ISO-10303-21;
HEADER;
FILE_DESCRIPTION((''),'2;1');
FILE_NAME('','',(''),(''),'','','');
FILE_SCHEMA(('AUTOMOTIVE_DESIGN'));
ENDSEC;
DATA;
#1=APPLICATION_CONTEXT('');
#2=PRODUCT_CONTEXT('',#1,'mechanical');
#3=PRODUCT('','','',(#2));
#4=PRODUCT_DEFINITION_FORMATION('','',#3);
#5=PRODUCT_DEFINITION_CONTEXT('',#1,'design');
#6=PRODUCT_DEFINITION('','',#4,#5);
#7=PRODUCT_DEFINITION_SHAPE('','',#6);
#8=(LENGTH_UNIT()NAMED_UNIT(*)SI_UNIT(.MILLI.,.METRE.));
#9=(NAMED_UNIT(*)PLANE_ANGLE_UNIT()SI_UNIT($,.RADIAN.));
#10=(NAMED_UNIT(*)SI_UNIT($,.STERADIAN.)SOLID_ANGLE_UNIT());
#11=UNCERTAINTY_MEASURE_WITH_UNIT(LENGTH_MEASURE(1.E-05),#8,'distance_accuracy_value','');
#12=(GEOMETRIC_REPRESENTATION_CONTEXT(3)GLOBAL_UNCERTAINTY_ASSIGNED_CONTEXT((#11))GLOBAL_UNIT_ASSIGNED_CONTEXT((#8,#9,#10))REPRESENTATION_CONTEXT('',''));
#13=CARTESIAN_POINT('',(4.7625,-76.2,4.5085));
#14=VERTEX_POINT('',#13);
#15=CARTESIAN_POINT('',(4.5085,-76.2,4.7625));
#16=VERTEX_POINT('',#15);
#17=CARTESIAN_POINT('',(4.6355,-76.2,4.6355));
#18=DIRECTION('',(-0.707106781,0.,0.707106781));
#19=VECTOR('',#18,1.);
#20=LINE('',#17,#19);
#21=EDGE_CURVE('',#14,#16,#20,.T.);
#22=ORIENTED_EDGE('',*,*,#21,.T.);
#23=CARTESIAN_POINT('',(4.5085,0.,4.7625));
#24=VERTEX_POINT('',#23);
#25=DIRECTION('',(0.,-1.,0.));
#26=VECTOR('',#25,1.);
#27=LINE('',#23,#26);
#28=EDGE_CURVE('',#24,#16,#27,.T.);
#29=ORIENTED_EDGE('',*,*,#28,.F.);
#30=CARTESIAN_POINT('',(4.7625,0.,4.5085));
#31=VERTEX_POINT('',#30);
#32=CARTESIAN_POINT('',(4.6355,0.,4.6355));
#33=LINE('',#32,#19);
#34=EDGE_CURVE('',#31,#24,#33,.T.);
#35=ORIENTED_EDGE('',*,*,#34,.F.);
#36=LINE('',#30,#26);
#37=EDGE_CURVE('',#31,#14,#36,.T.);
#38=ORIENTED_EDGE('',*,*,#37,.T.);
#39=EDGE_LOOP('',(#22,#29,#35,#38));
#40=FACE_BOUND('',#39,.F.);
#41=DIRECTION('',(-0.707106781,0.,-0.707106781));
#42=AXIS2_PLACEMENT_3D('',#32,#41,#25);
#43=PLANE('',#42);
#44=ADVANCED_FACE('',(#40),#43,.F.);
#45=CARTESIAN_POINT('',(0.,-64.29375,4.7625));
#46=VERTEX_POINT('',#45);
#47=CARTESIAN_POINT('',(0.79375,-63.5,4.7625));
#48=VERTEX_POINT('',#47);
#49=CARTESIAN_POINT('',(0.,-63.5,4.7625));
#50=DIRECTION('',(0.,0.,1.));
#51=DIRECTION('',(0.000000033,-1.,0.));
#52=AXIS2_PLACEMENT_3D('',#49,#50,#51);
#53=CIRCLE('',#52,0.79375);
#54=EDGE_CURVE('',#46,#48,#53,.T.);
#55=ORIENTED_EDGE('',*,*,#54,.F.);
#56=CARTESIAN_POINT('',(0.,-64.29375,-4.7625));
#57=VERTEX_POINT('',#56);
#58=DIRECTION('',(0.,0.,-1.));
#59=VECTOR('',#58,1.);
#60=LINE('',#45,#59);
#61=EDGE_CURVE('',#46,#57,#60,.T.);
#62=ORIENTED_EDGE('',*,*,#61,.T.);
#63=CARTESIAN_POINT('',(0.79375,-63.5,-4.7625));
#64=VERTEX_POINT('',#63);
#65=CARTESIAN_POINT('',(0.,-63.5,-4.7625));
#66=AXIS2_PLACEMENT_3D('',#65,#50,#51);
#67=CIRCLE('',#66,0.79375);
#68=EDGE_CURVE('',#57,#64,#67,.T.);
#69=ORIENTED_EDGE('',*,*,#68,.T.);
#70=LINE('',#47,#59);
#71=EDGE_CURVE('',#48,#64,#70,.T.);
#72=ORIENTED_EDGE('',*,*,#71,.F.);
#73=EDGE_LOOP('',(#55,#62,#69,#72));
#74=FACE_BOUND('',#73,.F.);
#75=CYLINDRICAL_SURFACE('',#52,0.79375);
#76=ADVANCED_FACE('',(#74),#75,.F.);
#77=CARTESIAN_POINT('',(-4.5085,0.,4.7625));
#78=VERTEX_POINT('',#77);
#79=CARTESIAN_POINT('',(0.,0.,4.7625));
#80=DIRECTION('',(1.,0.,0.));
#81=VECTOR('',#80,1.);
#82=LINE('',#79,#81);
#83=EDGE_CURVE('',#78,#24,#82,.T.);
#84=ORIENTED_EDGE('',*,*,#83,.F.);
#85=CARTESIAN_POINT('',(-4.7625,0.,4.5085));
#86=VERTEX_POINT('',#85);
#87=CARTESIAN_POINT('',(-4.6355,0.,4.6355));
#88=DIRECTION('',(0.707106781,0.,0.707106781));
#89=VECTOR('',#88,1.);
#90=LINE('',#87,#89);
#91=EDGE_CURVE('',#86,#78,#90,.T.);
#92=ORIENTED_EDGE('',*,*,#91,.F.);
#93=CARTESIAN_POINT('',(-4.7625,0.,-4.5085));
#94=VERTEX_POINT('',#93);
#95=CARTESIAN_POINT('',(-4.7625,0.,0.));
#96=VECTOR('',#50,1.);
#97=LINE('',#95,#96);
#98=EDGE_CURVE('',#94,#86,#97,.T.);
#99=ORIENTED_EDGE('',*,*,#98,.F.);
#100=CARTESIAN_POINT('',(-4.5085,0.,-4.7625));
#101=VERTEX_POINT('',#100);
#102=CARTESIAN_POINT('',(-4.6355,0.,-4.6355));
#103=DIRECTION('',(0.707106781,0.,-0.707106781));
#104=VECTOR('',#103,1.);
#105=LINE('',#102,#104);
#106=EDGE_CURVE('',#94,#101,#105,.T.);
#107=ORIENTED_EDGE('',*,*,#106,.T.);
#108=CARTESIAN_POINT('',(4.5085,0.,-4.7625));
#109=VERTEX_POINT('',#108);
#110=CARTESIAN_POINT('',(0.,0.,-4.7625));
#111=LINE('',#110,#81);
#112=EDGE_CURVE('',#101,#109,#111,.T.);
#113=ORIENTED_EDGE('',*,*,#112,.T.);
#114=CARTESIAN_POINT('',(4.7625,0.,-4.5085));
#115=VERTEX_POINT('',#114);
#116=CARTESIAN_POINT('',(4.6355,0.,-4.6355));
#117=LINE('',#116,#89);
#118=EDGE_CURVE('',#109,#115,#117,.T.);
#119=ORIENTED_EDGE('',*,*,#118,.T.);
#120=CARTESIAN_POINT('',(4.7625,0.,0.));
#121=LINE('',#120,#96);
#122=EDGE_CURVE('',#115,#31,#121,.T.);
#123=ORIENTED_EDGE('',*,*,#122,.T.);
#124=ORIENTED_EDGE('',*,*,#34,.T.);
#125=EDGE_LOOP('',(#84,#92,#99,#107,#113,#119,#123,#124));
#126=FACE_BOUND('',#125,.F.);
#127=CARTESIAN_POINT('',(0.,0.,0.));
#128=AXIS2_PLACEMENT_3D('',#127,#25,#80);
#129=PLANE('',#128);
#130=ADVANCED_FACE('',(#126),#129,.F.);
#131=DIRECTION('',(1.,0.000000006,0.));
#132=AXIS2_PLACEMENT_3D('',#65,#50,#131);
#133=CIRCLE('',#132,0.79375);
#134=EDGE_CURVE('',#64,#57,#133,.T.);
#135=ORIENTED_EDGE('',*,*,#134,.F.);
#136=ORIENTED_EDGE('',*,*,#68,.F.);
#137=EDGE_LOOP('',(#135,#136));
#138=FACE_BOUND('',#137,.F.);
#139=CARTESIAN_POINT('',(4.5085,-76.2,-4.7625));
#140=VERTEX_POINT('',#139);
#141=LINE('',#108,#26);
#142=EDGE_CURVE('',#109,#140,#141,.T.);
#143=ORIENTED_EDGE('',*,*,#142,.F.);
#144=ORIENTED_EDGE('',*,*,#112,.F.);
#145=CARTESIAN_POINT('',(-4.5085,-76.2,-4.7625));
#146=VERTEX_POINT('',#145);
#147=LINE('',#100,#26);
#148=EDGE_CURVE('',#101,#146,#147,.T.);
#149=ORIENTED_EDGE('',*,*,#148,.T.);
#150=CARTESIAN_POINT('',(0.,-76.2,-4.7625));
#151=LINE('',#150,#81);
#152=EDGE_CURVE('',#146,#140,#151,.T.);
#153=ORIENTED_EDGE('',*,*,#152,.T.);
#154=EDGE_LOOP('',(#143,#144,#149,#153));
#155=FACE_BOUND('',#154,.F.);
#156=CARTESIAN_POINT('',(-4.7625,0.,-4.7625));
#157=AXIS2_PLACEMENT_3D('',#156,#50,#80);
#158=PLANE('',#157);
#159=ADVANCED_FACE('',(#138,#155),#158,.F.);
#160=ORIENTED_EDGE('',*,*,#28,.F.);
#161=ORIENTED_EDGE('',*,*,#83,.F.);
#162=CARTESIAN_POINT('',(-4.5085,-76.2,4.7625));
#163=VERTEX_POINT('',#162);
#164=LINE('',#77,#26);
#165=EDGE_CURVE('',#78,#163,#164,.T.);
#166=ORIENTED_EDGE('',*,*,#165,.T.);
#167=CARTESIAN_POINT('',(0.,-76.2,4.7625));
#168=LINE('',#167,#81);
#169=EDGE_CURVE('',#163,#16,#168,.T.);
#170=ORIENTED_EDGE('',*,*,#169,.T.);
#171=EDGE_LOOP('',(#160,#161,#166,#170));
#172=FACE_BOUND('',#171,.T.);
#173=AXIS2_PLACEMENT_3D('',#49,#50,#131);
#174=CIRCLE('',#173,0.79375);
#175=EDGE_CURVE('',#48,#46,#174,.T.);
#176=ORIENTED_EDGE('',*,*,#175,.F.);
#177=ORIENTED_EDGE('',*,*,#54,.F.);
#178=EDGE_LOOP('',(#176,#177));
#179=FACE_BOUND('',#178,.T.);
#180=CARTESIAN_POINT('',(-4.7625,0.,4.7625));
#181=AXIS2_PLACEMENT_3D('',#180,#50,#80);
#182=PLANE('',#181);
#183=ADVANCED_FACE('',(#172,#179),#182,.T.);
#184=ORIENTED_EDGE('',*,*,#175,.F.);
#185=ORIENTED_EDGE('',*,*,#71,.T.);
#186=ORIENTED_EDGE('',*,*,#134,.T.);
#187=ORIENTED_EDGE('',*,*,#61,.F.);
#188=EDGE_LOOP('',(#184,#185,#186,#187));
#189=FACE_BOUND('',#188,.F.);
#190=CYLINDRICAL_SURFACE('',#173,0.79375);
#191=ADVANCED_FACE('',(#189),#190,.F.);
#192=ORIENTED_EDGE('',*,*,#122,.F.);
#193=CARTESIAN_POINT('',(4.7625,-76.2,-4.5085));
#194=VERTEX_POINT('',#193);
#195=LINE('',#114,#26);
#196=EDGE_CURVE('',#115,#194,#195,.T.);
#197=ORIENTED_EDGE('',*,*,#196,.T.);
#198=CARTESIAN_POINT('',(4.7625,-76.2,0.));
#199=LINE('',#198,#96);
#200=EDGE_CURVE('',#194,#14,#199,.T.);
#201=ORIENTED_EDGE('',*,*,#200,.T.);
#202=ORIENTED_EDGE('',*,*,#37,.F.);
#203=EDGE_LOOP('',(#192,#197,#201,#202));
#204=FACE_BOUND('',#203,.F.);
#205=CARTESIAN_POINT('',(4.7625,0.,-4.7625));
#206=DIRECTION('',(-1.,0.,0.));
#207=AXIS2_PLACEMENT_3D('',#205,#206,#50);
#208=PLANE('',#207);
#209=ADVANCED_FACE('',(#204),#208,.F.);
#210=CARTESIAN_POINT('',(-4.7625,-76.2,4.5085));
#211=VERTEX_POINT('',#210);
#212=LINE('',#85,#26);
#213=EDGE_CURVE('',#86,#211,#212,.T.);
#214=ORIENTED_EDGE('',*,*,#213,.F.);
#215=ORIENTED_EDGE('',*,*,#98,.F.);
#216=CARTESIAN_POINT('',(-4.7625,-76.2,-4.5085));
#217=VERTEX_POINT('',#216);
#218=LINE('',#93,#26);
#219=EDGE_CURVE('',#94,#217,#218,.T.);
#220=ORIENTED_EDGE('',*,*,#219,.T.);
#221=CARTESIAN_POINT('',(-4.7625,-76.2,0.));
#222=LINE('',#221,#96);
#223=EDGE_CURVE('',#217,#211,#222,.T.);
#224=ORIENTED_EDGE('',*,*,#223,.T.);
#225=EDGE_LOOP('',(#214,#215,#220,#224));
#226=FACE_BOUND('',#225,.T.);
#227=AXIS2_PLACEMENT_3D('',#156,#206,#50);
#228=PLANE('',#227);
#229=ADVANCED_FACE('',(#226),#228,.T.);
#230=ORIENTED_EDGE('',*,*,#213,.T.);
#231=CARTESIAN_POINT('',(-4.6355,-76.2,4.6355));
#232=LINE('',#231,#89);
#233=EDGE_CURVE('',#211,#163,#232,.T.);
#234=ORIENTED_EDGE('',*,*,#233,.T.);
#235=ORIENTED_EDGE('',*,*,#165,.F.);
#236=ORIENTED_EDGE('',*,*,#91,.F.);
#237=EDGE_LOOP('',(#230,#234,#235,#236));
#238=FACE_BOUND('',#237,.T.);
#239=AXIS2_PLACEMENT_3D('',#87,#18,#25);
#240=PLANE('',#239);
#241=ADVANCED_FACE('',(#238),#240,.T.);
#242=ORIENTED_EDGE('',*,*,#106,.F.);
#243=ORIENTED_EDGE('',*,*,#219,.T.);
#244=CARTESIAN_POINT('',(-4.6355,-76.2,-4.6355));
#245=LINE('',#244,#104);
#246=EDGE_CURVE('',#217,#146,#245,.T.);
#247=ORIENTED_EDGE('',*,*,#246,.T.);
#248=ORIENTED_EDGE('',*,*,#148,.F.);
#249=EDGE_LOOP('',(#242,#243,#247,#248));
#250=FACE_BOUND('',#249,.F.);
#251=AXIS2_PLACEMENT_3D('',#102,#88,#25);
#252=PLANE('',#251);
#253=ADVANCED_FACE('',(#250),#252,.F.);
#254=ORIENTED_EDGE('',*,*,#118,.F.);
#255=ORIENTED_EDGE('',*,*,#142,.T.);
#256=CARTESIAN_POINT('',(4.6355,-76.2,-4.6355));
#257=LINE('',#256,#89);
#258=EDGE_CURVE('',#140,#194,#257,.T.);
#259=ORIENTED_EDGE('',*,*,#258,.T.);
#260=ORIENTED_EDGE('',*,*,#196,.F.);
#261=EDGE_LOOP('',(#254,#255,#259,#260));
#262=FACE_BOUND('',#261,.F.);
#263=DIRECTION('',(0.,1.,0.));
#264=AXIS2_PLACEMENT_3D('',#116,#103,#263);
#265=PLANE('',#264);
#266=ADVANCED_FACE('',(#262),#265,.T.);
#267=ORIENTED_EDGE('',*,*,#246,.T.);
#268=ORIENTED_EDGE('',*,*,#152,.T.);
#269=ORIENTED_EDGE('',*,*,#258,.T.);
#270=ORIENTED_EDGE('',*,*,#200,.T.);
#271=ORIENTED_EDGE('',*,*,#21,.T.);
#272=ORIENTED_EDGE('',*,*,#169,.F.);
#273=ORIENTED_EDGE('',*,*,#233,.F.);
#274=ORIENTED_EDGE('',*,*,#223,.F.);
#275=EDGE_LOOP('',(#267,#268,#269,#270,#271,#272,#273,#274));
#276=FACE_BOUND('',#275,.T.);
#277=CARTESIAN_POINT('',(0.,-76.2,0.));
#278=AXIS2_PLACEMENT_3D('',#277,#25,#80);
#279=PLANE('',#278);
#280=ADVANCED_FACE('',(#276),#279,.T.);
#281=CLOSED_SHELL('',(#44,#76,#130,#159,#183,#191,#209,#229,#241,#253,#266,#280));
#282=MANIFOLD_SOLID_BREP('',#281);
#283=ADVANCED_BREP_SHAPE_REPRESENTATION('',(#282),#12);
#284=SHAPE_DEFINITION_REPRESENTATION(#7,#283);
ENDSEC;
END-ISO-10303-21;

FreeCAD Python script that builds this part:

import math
import FreeCAD as App
import Part
import Sketcher
from FreeCAD import Vector
Q = App.Units.Quantity


def edges_at(feature, points):
    """Names of the edges that pass closest to the given points."""
    edges = feature.Shape.Edges
    near = lambda p: min(range(len(edges)), key=lambda i: edges[i].distToShape(Part.Vertex(*p))[0])
    return sorted({f"Edge{near(p) + 1}" for p in points})

doc = App.newDocument("Part")
params = doc.addObject("Spreadsheet::Sheet", "Params")
for row, (alias, value) in enumerate([
    ("sketch1_width", "0.375 in"),
    ("pad1_length", "3 in"),
    ("chamfer_size", "0.01 in"),
    ("sketch2_radius", "0.03125 in"),
    ("pocket1_length", "1 in"),
], start=1):
    params.set(f"A{row}", alias)
    params.set(f"B{row}", "=" + value)
    params.setAlias(f"B{row}", alias)

body = doc.addObject("PartDesign::Body", "Body")

# Sketch on XZ plane
sketch1 = body.newObject("Sketcher::SketchObject", "Sketch")
sketch1.AttachmentSupport = (doc.getObject("XZ_Plane"), [""])
sketch1.MapMode = "FlatFace"
sketch1.addGeometry(Part.LineSegment(Vector(-4.7625, 4.7625, 0), Vector(-4.7625, -4.7625, 0)), False)
sketch1.addGeometry(Part.LineSegment(Vector(-4.7625, -4.7625, 0), Vector(4.7625, -4.7625, 0)), False)
sketch1.addGeometry(Part.LineSegment(Vector(4.7625, -4.7625, 0), Vector(4.7625, 4.7625, 0)), False)
sketch1.addGeometry(Part.LineSegment(Vector(4.7625, 4.7625, 0), Vector(-4.7625, 4.7625, 0)), False)
sketch1.addConstraint(Sketcher.Constraint("Coincident", 0, 2, 1, 1))
sketch1.addConstraint(Sketcher.Constraint("Coincident", 1, 2, 2, 1))
sketch1.addConstraint(Sketcher.Constraint("Coincident", 2, 2, 3, 1))
sketch1.addConstraint(Sketcher.Constraint("Coincident", 3, 2, 0, 1))
sketch1.addConstraint(Sketcher.Constraint("Vertical", 0))
sketch1.addConstraint(Sketcher.Constraint("Horizontal", 1))
sketch1.addConstraint(Sketcher.Constraint("Vertical", 2))
sketch1.addConstraint(Sketcher.Constraint("Horizontal", 3))
sketch1.addConstraint(Sketcher.Constraint("Symmetric", 0, 2, 2, 2, -1, 1))
sketch1.addConstraint(Sketcher.Constraint("Equal", 3, 0))
sketch1.addConstraint(Sketcher.Constraint("DistanceX", 1, 1, 1, 2, Q("0.375 in")))
sketch1.setExpression("Constraints[10]", "Params.sketch1_width")
pad1 = body.newObject("PartDesign::Pad", "Pad")
pad1.Profile = sketch1
pad1.setExpression("Length", "Params.pad1_length")
doc.recompute()

chamfer = body.newObject("PartDesign::Chamfer", "Chamfer")
chamfer.Base = (pad1, edges_at(pad1, [
    (-4.763, -38.1, 4.763),
    (-4.763, -38.1, -4.763),
    (4.763, -38.1, 4.763),
    (4.763, -38.1, -4.763),
]))
chamfer.setExpression("Size", "Params.chamfer_size")

# Sketch on XY plane
sketch2 = body.newObject("Sketcher::SketchObject", "Sketch001")
sketch2.AttachmentSupport = (doc.getObject("XY_Plane"), [""])
sketch2.MapMode = "FlatFace"
sketch2.AttachmentOffset = App.Placement(Vector(0, 0, 0.1875 * 25.4), App.Rotation())
sketch2.addGeometry(Part.ArcOfCircle(Part.Circle(Vector(0, -63.5, 0), Vector(0, 0, 1), 0.79375), math.radians(-89.999998), math.radians(-0.000002)), False)
sketch2.addGeometry(Part.ArcOfCircle(Part.Circle(Vector(0, -63.5, 0), Vector(0, 0, 1), 0.79375), math.radians(0), math.radians(270)), False)
sketch2.addConstraint(Sketcher.Constraint("Tangent", 0, 1, 1, 2))
sketch2.addConstraint(Sketcher.Constraint("Coincident", 1, 1, 0, 2))
sketch2.addConstraint(Sketcher.Constraint("PointOnObject", 0, 3, -2))
sketch2.addConstraint(Sketcher.Constraint("PointOnObject", 0, 1, -2))
sketch2.addConstraint(Sketcher.Constraint("Horizontal", 0, 3, 1, 1))
sketch2.addConstraint(Sketcher.Constraint("Radius", 0, Q("0.03125 in")))
sketch2.addConstraint(Sketcher.Constraint("DistanceY", 0, 3, -1, 1, Q("2.5 in")))
sketch2.setExpression("Constraints[5]", "Params.sketch2_radius")
pocket1 = body.newObject("PartDesign::Pocket", "Pocket")
pocket1.Profile = sketch2
pocket1.setExpression("Length", "Params.pocket1_length")

doc.recompute()
